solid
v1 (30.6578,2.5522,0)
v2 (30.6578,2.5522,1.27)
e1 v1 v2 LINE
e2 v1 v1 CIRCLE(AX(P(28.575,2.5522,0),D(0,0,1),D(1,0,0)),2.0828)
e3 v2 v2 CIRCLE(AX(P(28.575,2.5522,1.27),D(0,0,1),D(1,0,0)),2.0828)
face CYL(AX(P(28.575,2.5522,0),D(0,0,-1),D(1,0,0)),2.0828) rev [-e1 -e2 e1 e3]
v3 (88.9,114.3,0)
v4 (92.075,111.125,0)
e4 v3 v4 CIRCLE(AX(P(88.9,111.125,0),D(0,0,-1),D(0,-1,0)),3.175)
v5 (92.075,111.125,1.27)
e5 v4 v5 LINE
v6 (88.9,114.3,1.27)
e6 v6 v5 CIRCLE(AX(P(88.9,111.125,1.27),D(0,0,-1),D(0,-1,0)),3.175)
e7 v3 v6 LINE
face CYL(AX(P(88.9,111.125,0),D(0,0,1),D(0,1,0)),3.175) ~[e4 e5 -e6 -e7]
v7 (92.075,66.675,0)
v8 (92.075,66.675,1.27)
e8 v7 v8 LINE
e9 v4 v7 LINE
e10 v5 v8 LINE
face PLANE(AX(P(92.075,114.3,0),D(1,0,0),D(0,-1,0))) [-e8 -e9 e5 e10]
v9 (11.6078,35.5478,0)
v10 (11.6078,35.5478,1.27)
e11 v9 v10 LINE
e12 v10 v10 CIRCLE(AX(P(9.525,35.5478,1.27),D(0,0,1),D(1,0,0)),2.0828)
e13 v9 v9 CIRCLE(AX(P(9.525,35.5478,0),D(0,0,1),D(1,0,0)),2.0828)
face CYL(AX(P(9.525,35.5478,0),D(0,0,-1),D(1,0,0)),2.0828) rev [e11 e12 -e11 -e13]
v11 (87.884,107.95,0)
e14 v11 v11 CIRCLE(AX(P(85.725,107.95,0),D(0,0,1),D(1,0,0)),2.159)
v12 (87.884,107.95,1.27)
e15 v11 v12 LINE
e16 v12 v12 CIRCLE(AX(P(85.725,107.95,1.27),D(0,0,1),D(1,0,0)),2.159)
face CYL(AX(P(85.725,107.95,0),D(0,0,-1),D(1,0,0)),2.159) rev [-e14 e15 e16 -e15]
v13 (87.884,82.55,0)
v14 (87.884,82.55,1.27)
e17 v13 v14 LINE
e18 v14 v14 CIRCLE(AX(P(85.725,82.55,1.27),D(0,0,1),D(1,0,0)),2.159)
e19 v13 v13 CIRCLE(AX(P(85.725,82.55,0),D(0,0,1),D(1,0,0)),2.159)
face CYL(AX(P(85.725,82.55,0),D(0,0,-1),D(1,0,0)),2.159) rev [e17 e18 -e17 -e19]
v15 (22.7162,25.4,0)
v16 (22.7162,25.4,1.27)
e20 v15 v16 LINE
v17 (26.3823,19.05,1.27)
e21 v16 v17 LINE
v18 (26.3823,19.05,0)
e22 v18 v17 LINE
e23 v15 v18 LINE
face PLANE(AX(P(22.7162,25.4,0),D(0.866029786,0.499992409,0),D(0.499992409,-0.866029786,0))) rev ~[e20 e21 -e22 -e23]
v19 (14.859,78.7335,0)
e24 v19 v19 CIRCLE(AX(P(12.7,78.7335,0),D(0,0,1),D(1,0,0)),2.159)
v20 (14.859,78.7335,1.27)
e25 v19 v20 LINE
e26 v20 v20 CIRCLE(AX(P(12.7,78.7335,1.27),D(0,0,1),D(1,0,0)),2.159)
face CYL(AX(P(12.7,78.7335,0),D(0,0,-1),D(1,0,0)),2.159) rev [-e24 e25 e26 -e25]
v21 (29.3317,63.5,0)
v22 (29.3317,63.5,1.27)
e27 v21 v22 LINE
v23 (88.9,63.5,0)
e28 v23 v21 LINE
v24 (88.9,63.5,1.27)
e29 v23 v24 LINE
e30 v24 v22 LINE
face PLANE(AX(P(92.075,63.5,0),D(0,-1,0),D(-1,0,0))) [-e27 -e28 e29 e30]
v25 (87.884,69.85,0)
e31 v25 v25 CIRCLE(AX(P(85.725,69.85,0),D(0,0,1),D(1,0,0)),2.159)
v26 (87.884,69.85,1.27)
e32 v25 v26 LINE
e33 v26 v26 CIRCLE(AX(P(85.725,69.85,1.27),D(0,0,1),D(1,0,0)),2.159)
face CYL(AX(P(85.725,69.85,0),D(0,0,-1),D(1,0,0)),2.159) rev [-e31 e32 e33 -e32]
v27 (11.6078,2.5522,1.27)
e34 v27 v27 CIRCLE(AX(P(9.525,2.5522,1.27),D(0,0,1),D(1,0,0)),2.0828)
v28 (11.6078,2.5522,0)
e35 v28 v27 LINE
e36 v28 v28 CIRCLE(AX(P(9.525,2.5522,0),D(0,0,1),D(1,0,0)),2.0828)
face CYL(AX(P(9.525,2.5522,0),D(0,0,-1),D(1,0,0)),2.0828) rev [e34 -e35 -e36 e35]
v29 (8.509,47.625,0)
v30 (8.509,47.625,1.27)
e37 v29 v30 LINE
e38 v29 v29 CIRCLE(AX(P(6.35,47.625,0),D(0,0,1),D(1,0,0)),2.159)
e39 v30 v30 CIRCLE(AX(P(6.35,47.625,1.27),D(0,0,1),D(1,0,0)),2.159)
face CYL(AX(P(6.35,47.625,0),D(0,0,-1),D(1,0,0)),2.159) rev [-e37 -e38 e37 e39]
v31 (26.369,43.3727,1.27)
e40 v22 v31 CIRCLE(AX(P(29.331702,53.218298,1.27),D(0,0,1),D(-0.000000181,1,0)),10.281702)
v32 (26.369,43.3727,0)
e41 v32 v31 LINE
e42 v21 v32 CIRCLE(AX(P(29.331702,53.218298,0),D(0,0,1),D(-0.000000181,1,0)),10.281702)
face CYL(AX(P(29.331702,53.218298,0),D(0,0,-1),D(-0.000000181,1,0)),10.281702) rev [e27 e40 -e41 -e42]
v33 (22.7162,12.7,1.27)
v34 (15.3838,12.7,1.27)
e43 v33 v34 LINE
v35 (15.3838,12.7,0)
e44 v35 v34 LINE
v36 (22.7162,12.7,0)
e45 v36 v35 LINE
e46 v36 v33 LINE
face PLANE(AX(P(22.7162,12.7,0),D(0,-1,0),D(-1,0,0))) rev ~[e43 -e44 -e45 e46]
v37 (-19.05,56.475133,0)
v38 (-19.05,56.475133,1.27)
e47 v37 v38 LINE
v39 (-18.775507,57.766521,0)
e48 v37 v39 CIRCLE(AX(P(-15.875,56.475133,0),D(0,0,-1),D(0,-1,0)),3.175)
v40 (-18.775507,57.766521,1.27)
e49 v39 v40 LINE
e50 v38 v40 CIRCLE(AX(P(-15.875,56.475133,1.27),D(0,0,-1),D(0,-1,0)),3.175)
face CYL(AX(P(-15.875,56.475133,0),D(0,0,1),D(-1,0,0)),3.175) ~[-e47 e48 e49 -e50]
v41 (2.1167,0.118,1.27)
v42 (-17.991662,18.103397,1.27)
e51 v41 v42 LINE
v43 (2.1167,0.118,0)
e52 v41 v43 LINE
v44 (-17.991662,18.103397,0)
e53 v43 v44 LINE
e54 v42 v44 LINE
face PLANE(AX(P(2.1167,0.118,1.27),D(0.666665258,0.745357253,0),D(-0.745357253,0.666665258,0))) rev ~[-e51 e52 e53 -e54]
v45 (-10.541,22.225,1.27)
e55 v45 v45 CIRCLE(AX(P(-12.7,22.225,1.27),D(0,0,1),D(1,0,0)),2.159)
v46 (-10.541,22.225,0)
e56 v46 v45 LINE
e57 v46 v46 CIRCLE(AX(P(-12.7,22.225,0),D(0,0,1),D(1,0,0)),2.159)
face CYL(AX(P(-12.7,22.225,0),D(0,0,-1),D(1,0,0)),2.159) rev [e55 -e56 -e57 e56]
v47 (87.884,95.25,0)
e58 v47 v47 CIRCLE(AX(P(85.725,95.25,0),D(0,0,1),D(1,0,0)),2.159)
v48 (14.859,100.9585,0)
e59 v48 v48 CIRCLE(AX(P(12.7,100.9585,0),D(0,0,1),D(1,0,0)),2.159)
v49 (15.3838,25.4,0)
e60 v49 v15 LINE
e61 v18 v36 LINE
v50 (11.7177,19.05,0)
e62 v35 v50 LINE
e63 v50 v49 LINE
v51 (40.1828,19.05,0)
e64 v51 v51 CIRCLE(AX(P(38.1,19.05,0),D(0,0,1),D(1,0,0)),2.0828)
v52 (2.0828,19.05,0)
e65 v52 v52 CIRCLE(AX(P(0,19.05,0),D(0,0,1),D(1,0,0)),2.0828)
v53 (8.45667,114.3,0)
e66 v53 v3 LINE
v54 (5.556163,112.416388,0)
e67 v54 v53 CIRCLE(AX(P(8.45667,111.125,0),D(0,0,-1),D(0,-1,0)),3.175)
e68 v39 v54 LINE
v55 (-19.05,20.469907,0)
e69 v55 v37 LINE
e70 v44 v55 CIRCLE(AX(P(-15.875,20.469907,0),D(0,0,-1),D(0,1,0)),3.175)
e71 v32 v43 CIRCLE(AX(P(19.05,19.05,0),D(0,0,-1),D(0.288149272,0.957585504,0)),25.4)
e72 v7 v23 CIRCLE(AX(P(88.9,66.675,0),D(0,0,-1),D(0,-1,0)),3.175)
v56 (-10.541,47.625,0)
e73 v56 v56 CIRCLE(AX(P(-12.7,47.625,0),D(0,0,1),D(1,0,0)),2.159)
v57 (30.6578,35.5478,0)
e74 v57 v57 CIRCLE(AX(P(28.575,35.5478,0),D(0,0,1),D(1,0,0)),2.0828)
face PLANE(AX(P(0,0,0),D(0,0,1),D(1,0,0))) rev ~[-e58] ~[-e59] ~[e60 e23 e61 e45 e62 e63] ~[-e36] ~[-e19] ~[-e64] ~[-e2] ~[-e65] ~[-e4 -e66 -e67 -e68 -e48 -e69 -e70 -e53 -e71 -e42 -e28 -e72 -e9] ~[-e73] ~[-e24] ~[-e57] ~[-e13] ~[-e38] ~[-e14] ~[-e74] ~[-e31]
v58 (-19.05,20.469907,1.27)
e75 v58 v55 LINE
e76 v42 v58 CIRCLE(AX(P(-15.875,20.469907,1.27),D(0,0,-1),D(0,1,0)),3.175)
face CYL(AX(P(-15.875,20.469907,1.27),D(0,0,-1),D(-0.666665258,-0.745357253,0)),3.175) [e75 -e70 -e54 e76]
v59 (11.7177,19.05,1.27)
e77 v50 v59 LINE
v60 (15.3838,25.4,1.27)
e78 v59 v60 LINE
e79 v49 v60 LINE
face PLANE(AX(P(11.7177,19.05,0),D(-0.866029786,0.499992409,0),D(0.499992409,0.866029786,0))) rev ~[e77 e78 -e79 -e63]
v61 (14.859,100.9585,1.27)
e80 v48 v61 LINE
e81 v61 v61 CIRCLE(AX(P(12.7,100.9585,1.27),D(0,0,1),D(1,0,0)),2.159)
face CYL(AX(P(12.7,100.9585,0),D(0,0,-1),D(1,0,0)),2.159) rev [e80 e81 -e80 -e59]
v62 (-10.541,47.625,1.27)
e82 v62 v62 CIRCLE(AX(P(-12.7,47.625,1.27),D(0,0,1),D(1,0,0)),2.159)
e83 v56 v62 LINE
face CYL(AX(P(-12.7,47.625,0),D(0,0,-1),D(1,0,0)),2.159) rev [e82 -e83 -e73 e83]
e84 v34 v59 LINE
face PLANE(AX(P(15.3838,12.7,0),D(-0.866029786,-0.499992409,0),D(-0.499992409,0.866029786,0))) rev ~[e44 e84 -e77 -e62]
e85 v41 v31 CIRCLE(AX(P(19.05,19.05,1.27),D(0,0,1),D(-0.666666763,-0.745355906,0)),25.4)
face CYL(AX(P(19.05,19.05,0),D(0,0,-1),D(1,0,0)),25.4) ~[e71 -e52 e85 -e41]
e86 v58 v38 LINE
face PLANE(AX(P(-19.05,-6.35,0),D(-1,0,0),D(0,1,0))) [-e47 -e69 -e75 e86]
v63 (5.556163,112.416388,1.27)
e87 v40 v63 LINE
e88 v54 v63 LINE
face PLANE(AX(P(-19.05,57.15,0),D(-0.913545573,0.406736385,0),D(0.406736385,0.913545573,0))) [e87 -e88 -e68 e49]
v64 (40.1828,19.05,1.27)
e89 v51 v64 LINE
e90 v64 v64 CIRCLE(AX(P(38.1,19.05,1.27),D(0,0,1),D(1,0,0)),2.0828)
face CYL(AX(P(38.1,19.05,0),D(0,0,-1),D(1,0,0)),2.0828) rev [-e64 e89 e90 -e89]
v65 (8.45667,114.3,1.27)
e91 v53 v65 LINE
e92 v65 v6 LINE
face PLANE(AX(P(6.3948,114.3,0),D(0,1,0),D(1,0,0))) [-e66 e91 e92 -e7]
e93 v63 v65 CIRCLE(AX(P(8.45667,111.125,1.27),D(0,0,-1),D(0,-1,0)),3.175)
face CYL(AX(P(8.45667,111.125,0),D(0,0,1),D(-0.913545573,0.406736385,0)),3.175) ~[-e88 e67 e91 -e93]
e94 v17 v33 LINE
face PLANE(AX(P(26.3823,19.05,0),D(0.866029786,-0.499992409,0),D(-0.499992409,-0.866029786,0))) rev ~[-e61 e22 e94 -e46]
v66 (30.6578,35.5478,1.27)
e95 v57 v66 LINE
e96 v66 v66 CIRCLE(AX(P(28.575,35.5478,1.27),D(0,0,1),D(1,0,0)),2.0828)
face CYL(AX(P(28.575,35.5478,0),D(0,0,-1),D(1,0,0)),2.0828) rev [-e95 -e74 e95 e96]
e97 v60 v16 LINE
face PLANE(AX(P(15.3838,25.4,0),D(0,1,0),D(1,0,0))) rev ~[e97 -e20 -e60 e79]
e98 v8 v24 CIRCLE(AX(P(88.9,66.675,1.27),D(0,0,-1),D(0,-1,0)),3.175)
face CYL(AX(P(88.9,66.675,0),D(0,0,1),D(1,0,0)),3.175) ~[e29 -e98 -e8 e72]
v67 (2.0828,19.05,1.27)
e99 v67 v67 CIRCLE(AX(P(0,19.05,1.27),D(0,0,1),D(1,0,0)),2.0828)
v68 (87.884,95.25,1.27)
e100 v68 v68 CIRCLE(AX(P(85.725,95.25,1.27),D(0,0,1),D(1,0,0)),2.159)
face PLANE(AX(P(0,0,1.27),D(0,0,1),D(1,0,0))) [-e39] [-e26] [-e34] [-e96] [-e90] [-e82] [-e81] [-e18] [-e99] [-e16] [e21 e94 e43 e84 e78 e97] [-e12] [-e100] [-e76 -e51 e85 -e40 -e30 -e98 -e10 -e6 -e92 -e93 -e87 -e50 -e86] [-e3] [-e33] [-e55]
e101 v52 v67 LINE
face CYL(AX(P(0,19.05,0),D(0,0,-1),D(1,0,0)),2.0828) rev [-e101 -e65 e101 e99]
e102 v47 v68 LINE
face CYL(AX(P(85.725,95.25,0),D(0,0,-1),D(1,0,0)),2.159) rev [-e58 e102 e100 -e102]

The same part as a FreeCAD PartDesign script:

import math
import FreeCAD as App
import Part
import Sketcher
from FreeCAD import Vector
Q = App.Units.Quantity


def edges_at(feature, points):
    """Names of the edges that pass closest to the given points."""
    edges = feature.Shape.Edges
    near = lambda p: min(range(len(edges)), key=lambda i: edges[i].distToShape(Part.Vertex(*p))[0])
    return sorted({f"Edge{near(p) + 1}" for p in points})

doc = App.newDocument("Part")
body = doc.addObject("PartDesign::Body", "Body")

# Sketch on XY plane
sketch1 = doc.addObject("Sketcher::SketchObject", "Sketch")
body.addObject(sketch1)
sketch1.AttachmentSupport = (doc.XY_Plane, [""])
sketch1.MapMode = "FlatFace"
sketch1.addGeometry([
    Part.ArcOfCircle(Part.Circle(Vector(19.1, 19.1, 0), Vector(0, 0, 1), 25.4), math.radians(-90), math.radians(73)),  # 0
    Part.ArcOfCircle(Part.Circle(Vector(29.3, 53.2, 0), Vector(0, 0, 1), 10.3), math.radians(90), math.radians(253)),  # 1
    Part.LineSegment(Vector(29.3, 63.5, 0), Vector(92.1, 63.5, 0)),  # 2
    Part.LineSegment(Vector(92.1, 63.5, 0), Vector(92.1, 114.3, 0)),  # 3
    Part.LineSegment(Vector(92.1, 114.3, 0), Vector(6.4, 114.3, 0)),  # 4
    Part.LineSegment(Vector(6.4, 114.3, 0), Vector(-19.1, 57.1, 0)),  # 5
    Part.LineSegment(Vector(-19.1, 57.1, 0), Vector(-19.1, -6.3, 0)),  # 6
    Part.LineSegment(Vector(-19.1, -6.3, 0), Vector(19.1, -6.3, 0)),  # 7
    Part.LineSegment(Vector(15.4, 25.4, 0), Vector(22.7, 25.4, 0)),  # 8
    Part.LineSegment(Vector(22.7, 25.4, 0), Vector(26.4, 19.1, 0)),  # 9
    Part.LineSegment(Vector(26.4, 19.1, 0), Vector(22.7, 12.7, 0)),  # 10
    Part.LineSegment(Vector(22.7, 12.7, 0), Vector(15.4, 12.7, 0)),  # 11
    Part.LineSegment(Vector(15.4, 12.7, 0), Vector(11.7, 19.1, 0)),  # 12
    Part.LineSegment(Vector(11.7, 19.1, 0), Vector(15.4, 25.4, 0)),  # 13
    Part.Circle(Vector(0, 19.1, 0), Vector(0, 0, 1), 2.1),  # 14
    Part.Circle(Vector(9.5, 2.6, 0), Vector(0, 0, 1), 2.1),  # 15
    Part.Circle(Vector(28.6, 2.6, 0), Vector(0, 0, 1), 2.1),  # 16
    Part.Circle(Vector(38.1, 19.1, 0), Vector(0, 0, 1), 2.1),  # 17
    Part.Circle(Vector(9.5, 35.5, 0), Vector(0, 0, 1), 2.1),  # 18
    Part.Circle(Vector(28.6, 35.5, 0), Vector(0, 0, 1), 2.1),  # 19
    Part.Circle(Vector(85.7, 108, 0), Vector(0, 0, 1), 2.2),  # 20
    Part.Circle(Vector(-12.7, 22.2, 0), Vector(0, 0, 1), 2.2),  # 21
    Part.Circle(Vector(-12.7, 47.6, 0), Vector(0, 0, 1), 2.2),  # 22
    Part.Circle(Vector(6.3, 47.6, 0), Vector(0, 0, 1), 2.2),  # 23
    Part.Circle(Vector(12.7, 78.7, 0), Vector(0, 0, 1), 2.2),  # 24
    Part.Circle(Vector(12.7, 101, 0), Vector(0, 0, 1), 2.2),  # 25
    Part.Circle(Vector(85.7, 69.8, 0), Vector(0, 0, 1), 2.2),  # 26
    Part.Circle(Vector(85.7, 82.5, 0), Vector(0, 0, 1), 2.2),  # 27
    Part.Circle(Vector(85.7, 95.2, 0), Vector(0, 0, 1), 2.2),  # 28
], False)
sketch1.addConstraint([
    Sketcher.Constraint("Tangent", 0, 2, 1, 2),
    Sketcher.Constraint("Tangent", 1, 1, 2, 1),
    Sketcher.Constraint("Coincident", 2, 2, 3, 1),
    Sketcher.Constraint("Coincident", 3, 2, 4, 1),
    Sketcher.Constraint("Coincident", 4, 2, 5, 1),
    Sketcher.Constraint("Coincident", 5, 2, 6, 1),
    Sketcher.Constraint("Coincident", 6, 2, 7, 1),
    Sketcher.Constraint("Tangent", 7, 2, 0, 1),
    Sketcher.Constraint("Coincident", 8, 2, 9, 1),
    Sketcher.Constraint("Coincident", 9, 2, 10, 1),
    Sketcher.Constraint("Coincident", 10, 2, 11, 1),
    Sketcher.Constraint("Coincident", 11, 2, 12, 1),
    Sketcher.Constraint("Coincident", 12, 2, 13, 1),
    Sketcher.Constraint("Coincident", 13, 2, 8, 1),
    Sketcher.Constraint("Horizontal", 2),
    Sketcher.Constraint("Vertical", 3),
    Sketcher.Constraint("Horizontal", 4),
    Sketcher.Constraint("Vertical", 6),
    Sketcher.Constraint("Horizontal", 7),
    Sketcher.Constraint("Horizontal", 8),
    Sketcher.Constraint("Horizontal", 11),
    Sketcher.Constraint("Equal", 14, 15),
    Sketcher.Constraint("Equal", 15, 16),
    Sketcher.Constraint("Equal", 16, 17),
    Sketcher.Constraint("Equal", 17, 18),
    Sketcher.Constraint("Equal", 18, 19),
    Sketcher.Constraint("Equal", 20, 21),
    Sketcher.Constraint("Equal", 21, 22),
    Sketcher.Constraint("Equal", 22, 23),
    Sketcher.Constraint("Equal", 23, 24),
    Sketcher.Constraint("Equal", 24, 25),
    Sketcher.Constraint("Equal", 25, 26),
    Sketcher.Constraint("Equal", 26, 27),
    Sketcher.Constraint("Equal", 27, 28),
    Sketcher.Constraint("PointOnObject", 14, 3, -2),
    Sketcher.Constraint("Parallel", 9, 12),
    Sketcher.Constraint("Parallel", 10, 13),
    Sketcher.Constraint("Horizontal", 0, 3, 14, 3),
    Sketcher.Constraint("Horizontal", 15, 3, 16, 3),
    Sketcher.Constraint("Horizontal", 14, 3, 17, 3),
    Sketcher.Constraint("Horizontal", 18, 3, 19, 3),
    Sketcher.Constraint("Horizontal", 22, 3, 23, 3),
    Sketcher.Constraint("Horizontal", 17, 3, 9, 2),
    Sketcher.Constraint("Horizontal", 9, 2, 12, 2),
    Sketcher.Constraint("Vertical", 15, 3, 18, 3),
    Sketcher.Constraint("Vertical", 16, 3, 19, 3),
    Sketcher.Constraint("Vertical", 21, 3, 22, 3),
    Sketcher.Constraint("Vertical", 24, 3, 25, 3),
    Sketcher.Constraint("Vertical", 20, 3, 26, 3),
    Sketcher.Constraint("Vertical", 26, 3, 27, 3),
    Sketcher.Constraint("Vertical", 27, 3, 28, 3),
    Sketcher.Constraint("Vertical", 8, 2, 10, 2),
    Sketcher.Constraint("Vertical", 11, 2, 13, 2),
    Sketcher.Constraint("Radius", 0, Q("1 in")),
    Sketcher.Constraint("Diameter", 20, Q("0.17 in")),
    Sketcher.Constraint("DistanceY", 3, 1, 3, 2, Q("2 in")),
    Sketcher.Constraint("Diameter", 14, Q("0.164 in")),
    Sketcher.Constraint("DistanceX", 7, 1, 7, 2, Q("1.5 in")),
    Sketcher.Constraint("DistanceY", -1, 1, 8, 2, Q("1 in")),
    Sketcher.Constraint("Angle", 5, Q("-114 deg")),
    Sketcher.Constraint("DistanceY", 21, 3, 22, 3, Q("1 in")),
    Sketcher.Constraint("DistanceX", 22, 3, 24, 3, Q("1 in")),
    Sketcher.Constraint("DistanceY", 17, 3, 26, 3, Q("2 in")),
    Sketcher.Constraint("DistanceY", 27, 3, 20, 3, Q("1 in")),
    Sketcher.Constraint("DistanceY", 26, 3, 28, 3, Q("1 in")),
    Sketcher.Constraint("DistanceX", 5, 2, 23, 3, Q("1 in")),
    Sketcher.Constraint("DistanceX", -1, 1, 17, 3, Q("1.5 in")),
    Sketcher.Constraint("DistanceX", 21, 3, -1, 1, Q("0.5 in")),
    Sketcher.Constraint("DistanceY", -1, 1, 10, 2, Q("0.5 in")),
    Sketcher.Constraint("DistanceY", 26, 3, 20, 3, Q("1.5 in")),
    Sketcher.Constraint("DistanceX", -1, 1, 0, 3, Q("0.75 in")),
    Sketcher.Constraint("DistanceY", -1, 1, 5, 2, Q("2.25 in")),
    Sketcher.Constraint("DistanceX", 15, 3, 16, 3, Q("0.75 in")),
    Sketcher.Constraint("DistanceX", 19, 3, 20, 3, Q("2.25 in")),
    Sketcher.Constraint("DistanceX", 26, 3, 2, 2, Q("0.25 in")),
    Sketcher.Constraint("DistanceY", 2, 2, 26, 3, Q("0.25 in")),
    Sketcher.Constraint("DistanceX", -1, 1, 15, 3, Q("0.375 in")),
    Sketcher.Constraint("DistanceY", -1, 1, 21, 3, Q("0.875 in")),
    Sketcher.Constraint("Angle", 9, Q("-60.0005 deg")),
    Sketcher.Constraint("DistanceY", 24, 3, 25, 3, Q("0.875 in")),
    Sketcher.Constraint("Radius", 1, Q("0.4048 in")),
    Sketcher.Constraint("DistanceX", 11, 2, 9, 2, Q("0.433 in")),
    Sketcher.Constraint("DistanceY", 18, 3, 1, 3, Q("0.6957 in")),
    Sketcher.Constraint("DistanceX", 8, 2, 0, 2, Q("0.1438 in")),
    Sketcher.Constraint("DistanceY", -1, 1, 15, 3, 2.5522),
    Sketcher.Constraint("DistanceY", -1, 1, 24, 3, 78.7335),
])
pad1 = doc.addObject("PartDesign::Pad", "Pad")
body.addObject(pad1)
pad1.Profile = sketch1
pad1.Length = Q("0.05 in")

# Sketch on XY plane
sketch2 = doc.addObject("Sketcher::SketchObject", "Sketch001")
body.addObject(sketch2)
sketch2.AttachmentSupport = (doc.XY_Plane, [""])
sketch2.MapMode = "FlatFace"
sketch2.AttachmentOffset = App.Placement(Vector(0, 0, 0.05 * 25.4), App.Rotation())
sketch2.addGeometry([
    Part.LineSegment(Vector(-19, 19, 0), Vector(-19, -6, 0)),
    Part.LineSegment(Vector(-19, -6, 0), Vector(19, -6, 0)),
    Part.ArcOfCircle(Part.Circle(Vector(19, 19, 0), Vector(0, 0, 1), 25), math.radians(-132), math.radians(-90)),
    Part.LineSegment(Vector(2, 0, 0), Vector(-19, 19, 0)),
], False)
sketch2.addConstraint([
    Sketcher.Constraint("Coincident", 0, 2, 1, 1),
    Sketcher.Constraint("Tangent", 1, 2, 2, 2),
    Sketcher.Constraint("Tangent", 2, 1, 3, 1),
    Sketcher.Constraint("Coincident", 3, 2, 0, 1),
    Sketcher.Constraint("Vertical", 0),
    Sketcher.Constraint("Horizontal", 1),
    Sketcher.Constraint("Horizontal", 2, 3, 3, 2),
    Sketcher.Constraint("Radius", 2, Q("1 in")),
    Sketcher.Constraint("DistanceX", 1, 1, 1, 2, Q("1.5 in")),
    Sketcher.Constraint("DistanceX", -1, 1, 2, 3, Q("0.75 in")),
    Sketcher.Constraint("DistanceY", -1, 1, 2, 3, Q("0.75 in")),
])
pocket1 = doc.addObject("PartDesign::Pocket", "Pocket")
body.addObject(pocket1)
pocket1.Profile = sketch2
pocket1.Length = Q("1 in")
doc.recompute()

fillet = doc.addObject("PartDesign::Fillet", "Fillet")
body.addObject(fillet)
fillet.Base = (pocket1, edges_at(pocket1, [
    (6.395, 114.3, 0.635),
    (-19.05, 57.15, 0.635),
    (-19.05, 19.05, 0.635),
    (92.075, 63.5, 0.635),
    (92.075, 114.3, 0.635),
]))
fillet.Radius = Q("0.125 in")

doc.recompute()
